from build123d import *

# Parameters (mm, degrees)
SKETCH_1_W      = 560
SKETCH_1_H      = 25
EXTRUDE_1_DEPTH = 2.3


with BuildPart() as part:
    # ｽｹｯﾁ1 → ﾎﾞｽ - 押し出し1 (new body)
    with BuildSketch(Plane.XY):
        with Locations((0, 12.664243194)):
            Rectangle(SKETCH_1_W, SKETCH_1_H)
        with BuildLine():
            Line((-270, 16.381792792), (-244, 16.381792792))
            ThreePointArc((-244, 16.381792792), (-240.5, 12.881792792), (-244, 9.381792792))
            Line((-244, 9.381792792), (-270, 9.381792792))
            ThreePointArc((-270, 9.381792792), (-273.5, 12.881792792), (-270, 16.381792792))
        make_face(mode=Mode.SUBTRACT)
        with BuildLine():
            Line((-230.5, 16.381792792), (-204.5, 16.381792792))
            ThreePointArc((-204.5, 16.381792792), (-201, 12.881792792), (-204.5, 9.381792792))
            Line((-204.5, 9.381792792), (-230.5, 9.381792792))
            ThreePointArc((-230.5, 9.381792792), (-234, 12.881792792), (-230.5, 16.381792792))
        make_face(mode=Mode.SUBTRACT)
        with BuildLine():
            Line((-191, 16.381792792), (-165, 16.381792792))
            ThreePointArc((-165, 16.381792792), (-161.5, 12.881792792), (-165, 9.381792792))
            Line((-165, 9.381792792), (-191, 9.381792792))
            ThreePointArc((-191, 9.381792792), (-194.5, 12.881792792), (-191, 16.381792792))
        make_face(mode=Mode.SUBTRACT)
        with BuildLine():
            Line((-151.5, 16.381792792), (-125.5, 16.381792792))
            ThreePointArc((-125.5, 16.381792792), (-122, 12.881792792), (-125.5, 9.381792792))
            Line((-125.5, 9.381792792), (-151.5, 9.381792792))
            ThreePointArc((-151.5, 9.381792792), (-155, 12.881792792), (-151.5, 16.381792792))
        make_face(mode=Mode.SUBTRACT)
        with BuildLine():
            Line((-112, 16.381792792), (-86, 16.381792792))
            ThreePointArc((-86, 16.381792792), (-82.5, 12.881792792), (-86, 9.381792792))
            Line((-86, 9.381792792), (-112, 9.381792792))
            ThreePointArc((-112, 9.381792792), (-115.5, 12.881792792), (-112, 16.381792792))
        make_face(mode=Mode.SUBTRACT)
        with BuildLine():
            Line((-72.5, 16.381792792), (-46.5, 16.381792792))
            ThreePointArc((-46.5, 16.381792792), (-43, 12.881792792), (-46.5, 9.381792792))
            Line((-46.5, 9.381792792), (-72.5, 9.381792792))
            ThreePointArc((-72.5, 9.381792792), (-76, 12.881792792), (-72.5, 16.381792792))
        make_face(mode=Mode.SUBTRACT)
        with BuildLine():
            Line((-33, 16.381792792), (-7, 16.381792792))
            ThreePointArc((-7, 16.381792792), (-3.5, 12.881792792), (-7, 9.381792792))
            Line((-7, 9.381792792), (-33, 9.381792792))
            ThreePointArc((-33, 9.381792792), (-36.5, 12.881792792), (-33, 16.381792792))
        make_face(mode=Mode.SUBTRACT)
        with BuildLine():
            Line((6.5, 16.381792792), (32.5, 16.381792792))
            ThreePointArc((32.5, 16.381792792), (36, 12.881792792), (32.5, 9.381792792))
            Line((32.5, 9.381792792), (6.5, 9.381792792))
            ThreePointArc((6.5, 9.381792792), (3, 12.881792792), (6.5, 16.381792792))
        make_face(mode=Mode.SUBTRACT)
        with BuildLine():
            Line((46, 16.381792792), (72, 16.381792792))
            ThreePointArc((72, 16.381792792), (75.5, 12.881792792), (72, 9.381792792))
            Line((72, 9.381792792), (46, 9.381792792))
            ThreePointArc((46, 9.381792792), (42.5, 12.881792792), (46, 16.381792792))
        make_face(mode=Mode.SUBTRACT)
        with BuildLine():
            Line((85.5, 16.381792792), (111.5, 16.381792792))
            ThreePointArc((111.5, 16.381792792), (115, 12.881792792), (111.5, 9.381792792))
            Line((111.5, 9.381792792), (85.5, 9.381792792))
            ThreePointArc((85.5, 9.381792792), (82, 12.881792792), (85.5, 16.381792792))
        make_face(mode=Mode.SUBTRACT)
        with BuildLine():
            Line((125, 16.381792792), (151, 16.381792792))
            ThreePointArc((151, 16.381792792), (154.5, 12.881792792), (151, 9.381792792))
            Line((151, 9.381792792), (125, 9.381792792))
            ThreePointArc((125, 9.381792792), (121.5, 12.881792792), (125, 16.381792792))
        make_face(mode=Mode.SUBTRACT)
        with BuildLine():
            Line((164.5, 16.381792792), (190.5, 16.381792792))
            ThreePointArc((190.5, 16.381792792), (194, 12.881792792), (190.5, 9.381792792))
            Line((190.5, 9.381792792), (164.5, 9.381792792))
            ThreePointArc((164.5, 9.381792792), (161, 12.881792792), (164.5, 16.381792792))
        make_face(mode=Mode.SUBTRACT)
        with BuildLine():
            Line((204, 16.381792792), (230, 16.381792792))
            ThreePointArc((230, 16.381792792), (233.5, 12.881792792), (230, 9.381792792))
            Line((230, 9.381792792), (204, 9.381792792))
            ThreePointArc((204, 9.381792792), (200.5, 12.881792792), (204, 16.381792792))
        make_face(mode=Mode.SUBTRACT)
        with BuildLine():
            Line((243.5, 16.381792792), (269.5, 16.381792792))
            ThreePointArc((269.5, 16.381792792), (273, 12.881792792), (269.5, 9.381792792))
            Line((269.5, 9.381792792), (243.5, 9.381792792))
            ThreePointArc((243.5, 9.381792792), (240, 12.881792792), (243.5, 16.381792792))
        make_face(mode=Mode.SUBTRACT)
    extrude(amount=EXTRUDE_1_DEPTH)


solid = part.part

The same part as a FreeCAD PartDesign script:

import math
import FreeCAD as App
import Part
import Sketcher

doc = App.newDocument("Part")
body = doc.addObject("PartDesign::Body", "Body")

# Sketch on XY plane
sketch1 = body.newObject("Sketcher::SketchObject", "Sketch")
sketch1.AttachmentSupport = (doc.getObject("XY_Plane"), [""])
sketch1.MapMode = "FlatFace"
sketch1.addGeometry(Part.LineSegment(App.Vector(-280, 25.2, 0), App.Vector(-280, 0.2, 0)), False)
sketch1.addGeometry(Part.LineSegment(App.Vector(-280, 0.2, 0), App.Vector(280, 0.2, 0)), False)
sketch1.addGeometry(Part.LineSegment(App.Vector(280, 0.2, 0), App.Vector(280, 25.2, 0)), False)
sketch1.addGeometry(Part.LineSegment(App.Vector(280, 25.2, 0), App.Vector(-280, 25.2, 0)), False)
sketch1.addGeometry(Part.ArcOfCircle(Part.Circle(App.Vector(-270, 12.9, 0), App.Vector(0, 0, 1), 3.5), math.radians(90), math.radians(270)), False)
sketch1.addGeometry(Part.LineSegment(App.Vector(-270, 16.4, 0), App.Vector(-244, 16.4, 0)), False)
sketch1.addGeometry(Part.ArcOfCircle(Part.Circle(App.Vector(-244, 12.9, 0), App.Vector(0, 0, 1), 3.5), math.radians(-90), math.radians(90)), False)
sketch1.addGeometry(Part.LineSegment(App.Vector(-244, 9.4, 0), App.Vector(-270, 9.4, 0)), False)
sketch1.addGeometry(Part.ArcOfCircle(Part.Circle(App.Vector(-230.5, 12.9, 0), App.Vector(0, 0, 1), 3.5), math.radians(90), math.radians(270)), False)
sketch1.addGeometry(Part.LineSegment(App.Vector(-230.5, 16.4, 0), App.Vector(-204.5, 16.4, 0)), False)
sketch1.addGeometry(Part.ArcOfCircle(Part.Circle(App.Vector(-204.5, 12.9, 0), App.Vector(0, 0, 1), 3.5), math.radians(-90), math.radians(90)), False)
sketch1.addGeometry(Part.LineSegment(App.Vector(-204.5, 9.4, 0), App.Vector(-230.5, 9.4, 0)), False)
sketch1.addGeometry(Part.ArcOfCircle(Part.Circle(App.Vector(-191, 12.9, 0), App.Vector(0, 0, 1), 3.5), math.radians(90), math.radians(270)), False)
sketch1.addGeometry(Part.LineSegment(App.Vector(-191, 16.4, 0), App.Vector(-165, 16.4, 0)), False)
sketch1.addGeometry(Part.ArcOfCircle(Part.Circle(App.Vector(-165, 12.9, 0), App.Vector(0, 0, 1), 3.5), math.radians(-90), math.radians(90)), False)
sketch1.addGeometry(Part.LineSegment(App.Vector(-165, 9.4, 0), App.Vector(-191, 9.4, 0)), False)
sketch1.addGeometry(Part.ArcOfCircle(Part.Circle(App.Vector(-151.5, 12.9, 0), App.Vector(0, 0, 1), 3.5), math.radians(90), math.radians(270)), False)
sketch1.addGeometry(Part.LineSegment(App.Vector(-151.5, 16.4, 0), App.Vector(-125.5, 16.4, 0)), False)
sketch1.addGeometry(Part.ArcOfCircle(Part.Circle(App.Vector(-125.5, 12.9, 0), App.Vector(0, 0, 1), 3.5), math.radians(-90), math.radians(90)), False)
sketch1.addGeometry(Part.LineSegment(App.Vector(-125.5, 9.4, 0), App.Vector(-151.5, 9.4, 0)), False)
sketch1.addGeometry(Part.ArcOfCircle(Part.Circle(App.Vector(-112, 12.9, 0), App.Vector(0, 0, 1), 3.5), math.radians(90), math.radians(270)), False)
sketch1.addGeometry(Part.LineSegment(App.Vector(-112, 16.4, 0), App.Vector(-86, 16.4, 0)), False)
sketch1.addGeometry(Part.ArcOfCircle(Part.Circle(App.Vector(-86, 12.9, 0), App.Vector(0, 0, 1), 3.5), math.radians(-90), math.radians(90)), False)
sketch1.addGeometry(Part.LineSegment(App.Vector(-86, 9.4, 0), App.Vector(-112, 9.4, 0)), False)
sketch1.addGeometry(Part.ArcOfCircle(Part.Circle(App.Vector(-72.5, 12.9, 0), App.Vector(0, 0, 1), 3.5), math.radians(90), math.radians(270)), False)
sketch1.addGeometry(Part.LineSegment(App.Vector(-72.5, 16.4, 0), App.Vector(-46.5, 16.4, 0)), False)
sketch1.addGeometry(Part.ArcOfCircle(Part.Circle(App.Vector(-46.5, 12.9, 0), App.Vector(0, 0, 1), 3.5), math.radians(-90), math.radians(90)), False)
sketch1.addGeometry(Part.LineSegment(App.Vector(-46.5, 9.4, 0), App.Vector(-72.5, 9.4, 0)), False)
sketch1.addGeometry(Part.ArcOfCircle(Part.Circle(App.Vector(-33, 12.9, 0), App.Vector(0, 0, 1), 3.5), math.radians(90), math.radians(270)), False)
sketch1.addGeometry(Part.LineSegment(App.Vector(-33, 16.4, 0), App.Vector(-7, 16.4, 0)), False)
sketch1.addGeometry(Part.ArcOfCircle(Part.Circle(App.Vector(-7, 12.9, 0), App.Vector(0, 0, 1), 3.5), math.radians(-90), math.radians(90)), False)
sketch1.addGeometry(Part.LineSegment(App.Vector(-7, 9.4, 0), App.Vector(-33, 9.4, 0)), False)
sketch1.addGeometry(Part.ArcOfCircle(Part.Circle(App.Vector(6.5, 12.9, 0), App.Vector(0, 0, 1), 3.5), math.radians(90), math.radians(270)), False)
sketch1.addGeometry(Part.LineSegment(App.Vector(6.5, 16.4, 0), App.Vector(32.5, 16.4, 0)), False)
sketch1.addGeometry(Part.ArcOfCircle(Part.Circle(App.Vector(32.5, 12.9, 0), App.Vector(0, 0, 1), 3.5), math.radians(-90), math.radians(90)), False)
sketch1.addGeometry(Part.LineSegment(App.Vector(32.5, 9.4, 0), App.Vector(6.5, 9.4, 0)), False)
sketch1.addGeometry(Part.ArcOfCircle(Part.Circle(App.Vector(46, 12.9, 0), App.Vector(0, 0, 1), 3.5), math.radians(90), math.radians(270)), False)
sketch1.addGeometry(Part.LineSegment(App.Vector(46, 16.4, 0), App.Vector(72, 16.4, 0)), False)
sketch1.addGeometry(Part.ArcOfCircle(Part.Circle(App.Vector(72, 12.9, 0), App.Vector(0, 0, 1), 3.5), math.radians(-90), math.radians(90)), False)
sketch1.addGeometry(Part.LineSegment(App.Vector(72, 9.4, 0), App.Vector(46, 9.4, 0)), False)
sketch1.addGeometry(Part.ArcOfCircle(Part.Circle(App.Vector(85.5, 12.9, 0), App.Vector(0, 0, 1), 3.5), math.radians(90), math.radians(270)), False)
sketch1.addGeometry(Part.LineSegment(App.Vector(85.5, 16.4, 0), App.Vector(111.5, 16.4, 0)), False)
sketch1.addGeometry(Part.ArcOfCircle(Part.Circle(App.Vector(111.5, 12.9, 0), App.Vector(0, 0, 1), 3.5), math.radians(-90), math.radians(90)), False)
sketch1.addGeometry(Part.LineSegment(App.Vector(111.5, 9.4, 0), App.Vector(85.5, 9.4, 0)), False)
sketch1.addGeometry(Part.ArcOfCircle(Part.Circle(App.Vector(125, 12.9, 0), App.Vector(0, 0, 1), 3.5), math.radians(90), math.radians(270)), False)
sketch1.addGeometry(Part.LineSegment(App.Vector(125, 16.4, 0), App.Vector(151, 16.4, 0)), False)
sketch1.addGeometry(Part.ArcOfCircle(Part.Circle(App.Vector(151, 12.9, 0), App.Vector(0, 0, 1), 3.5), math.radians(-90), math.radians(90)), False)
sketch1.addGeometry(Part.LineSegment(App.Vector(151, 9.4, 0), App.Vector(125, 9.4, 0)), False)
sketch1.addGeometry(Part.ArcOfCircle(Part.Circle(App.Vector(164.5, 12.9, 0), App.Vector(0, 0, 1), 3.5), math.radians(90), math.radians(270)), False)
sketch1.addGeometry(Part.LineSegment(App.Vector(164.5, 16.4, 0), App.Vector(190.5, 16.4, 0)), False)
sketch1.addGeometry(Part.ArcOfCircle(Part.Circle(App.Vector(190.5, 12.9, 0), App.Vector(0, 0, 1), 3.5), math.radians(-90), math.radians(90)), False)
sketch1.addGeometry(Part.LineSegment(App.Vector(190.5, 9.4, 0), App.Vector(164.5, 9.4, 0)), False)
sketch1.addGeometry(Part.ArcOfCircle(Part.Circle(App.Vector(204, 12.9, 0), App.Vector(0, 0, 1), 3.5), math.radians(90), math.radians(270)), False)
sketch1.addGeometry(Part.LineSegment(App.Vector(204, 16.4, 0), App.Vector(230, 16.4, 0)), False)
sketch1.addGeometry(Part.ArcOfCircle(Part.Circle(App.Vector(230, 12.9, 0), App.Vector(0, 0, 1), 3.5), math.radians(-90), math.radians(90)), False)
sketch1.addGeometry(Part.LineSegment(App.Vector(230, 9.4, 0), App.Vector(204, 9.4, 0)), False)
sketch1.addGeometry(Part.ArcOfCircle(Part.Circle(App.Vector(243.5, 12.9, 0), App.Vector(0, 0, 1), 3.5), math.radians(90), math.radians(270)), False)
sketch1.addGeometry(Part.LineSegment(App.Vector(243.5, 16.4, 0), App.Vector(269.5, 16.4, 0)), False)
sketch1.addGeometry(Part.ArcOfCircle(Part.Circle(App.Vector(269.5, 12.9, 0), App.Vector(0, 0, 1), 3.5), math.radians(-90), math.radians(90)), False)
sketch1.addGeometry(Part.LineSegment(App.Vector(269.5, 9.4, 0), App.Vector(243.5, 9.4, 0)), False)
sketch1.addConstraint(Sketcher.Constraint("Coincident", 0, 2, 1, 1))
sketch1.addConstraint(Sketcher.Constraint("Coincident", 1, 2, 2, 1))
sketch1.addConstraint(Sketcher.Constraint("Coincident", 2, 2, 3, 1))
sketch1.addConstraint(Sketcher.Constraint("Coincident", 3, 2, 0, 1))
sketch1.addConstraint(Sketcher.Constraint("Tangent", 4, 1, 5, 1))
sketch1.addConstraint(Sketcher.Constraint("Tangent", 5, 2, 6, 2))
sketch1.addConstraint(Sketcher.Constraint("Tangent", 6, 1, 7, 1))
sketch1.addConstraint(Sketcher.Constraint("Tangent", 7, 2, 4, 2))
sketch1.addConstraint(Sketcher.Constraint("Tangent", 8, 1, 9, 1))
sketch1.addConstraint(Sketcher.Constraint("Tangent", 9, 2, 10, 2))
sketch1.addConstraint(Sketcher.Constraint("Tangent", 10, 1, 11, 1))
sketch1.addConstraint(Sketcher.Constraint("Tangent", 11, 2, 8, 2))
sketch1.addConstraint(Sketcher.Constraint("Tangent", 12, 1, 13, 1))
sketch1.addConstraint(Sketcher.Constraint("Tangent", 13, 2, 14, 2))
sketch1.addConstraint(Sketcher.Constraint("Tangent", 14, 1, 15, 1))
sketch1.addConstraint(Sketcher.Constraint("Tangent", 15, 2, 12, 2))
sketch1.addConstraint(Sketcher.Constraint("Tangent", 16, 1, 17, 1))
sketch1.addConstraint(Sketcher.Constraint("Tangent", 17, 2, 18, 2))
sketch1.addConstraint(Sketcher.Constraint("Tangent", 18, 1, 19, 1))
sketch1.addConstraint(Sketcher.Constraint("Tangent", 19, 2, 16, 2))
sketch1.addConstraint(Sketcher.Constraint("Tangent", 20, 1, 21, 1))
sketch1.addConstraint(Sketcher.Constraint("Tangent", 21, 2, 22, 2))
sketch1.addConstraint(Sketcher.Constraint("Tangent", 22, 1, 23, 1))
sketch1.addConstraint(Sketcher.Constraint("Tangent", 23, 2, 20, 2))
sketch1.addConstraint(Sketcher.Constraint("Tangent", 24, 1, 25, 1))
sketch1.addConstraint(Sketcher.Constraint("Tangent", 25, 2, 26, 2))
sketch1.addConstraint(Sketcher.Constraint("Tangent", 26, 1, 27, 1))
sketch1.addConstraint(Sketcher.Constraint("Tangent", 27, 2, 24, 2))
sketch1.addConstraint(Sketcher.Constraint("Tangent", 28, 1, 29, 1))
sketch1.addConstraint(Sketcher.Constraint("Tangent", 29, 2, 30, 2))
sketch1.addConstraint(Sketcher.Constraint("Tangent", 30, 1, 31, 1))
sketch1.addConstraint(Sketcher.Constraint("Tangent", 31, 2, 28, 2))
sketch1.addConstraint(Sketcher.Constraint("Tangent", 32, 1, 33, 1))
sketch1.addConstraint(Sketcher.Constraint("Tangent", 33, 2, 34, 2))
sketch1.addConstraint(Sketcher.Constraint("Tangent", 34, 1, 35, 1))
sketch1.addConstraint(Sketcher.Constraint("Tangent", 35, 2, 32, 2))
sketch1.addConstraint(Sketcher.Constraint("Tangent", 36, 1, 37, 1))
sketch1.addConstraint(Sketcher.Constraint("Tangent", 37, 2, 38, 2))
sketch1.addConstraint(Sketcher.Constraint("Tangent", 38, 1, 39, 1))
sketch1.addConstraint(Sketcher.Constraint("Tangent", 39, 2, 36, 2))
sketch1.addConstraint(Sketcher.Constraint("Tangent", 40, 1, 41, 1))
sketch1.addConstraint(Sketcher.Constraint("Tangent", 41, 2, 42, 2))
sketch1.addConstraint(Sketcher.Constraint("Tangent", 42, 1, 43, 1))
sketch1.addConstraint(Sketcher.Constraint("Tangent", 43, 2, 40, 2))
sketch1.addConstraint(Sketcher.Constraint("Tangent", 44, 1, 45, 1))
sketch1.addConstraint(Sketcher.Constraint("Tangent", 45, 2, 46, 2))
sketch1.addConstraint(Sketcher.Constraint("Tangent", 46, 1, 47, 1))
sketch1.addConstraint(Sketcher.Constraint("Tangent", 47, 2, 44, 2))
sketch1.addConstraint(Sketcher.Constraint("Tangent", 48, 1, 49, 1))
sketch1.addConstraint(Sketcher.Constraint("Tangent", 49, 2, 50, 2))
sketch1.addConstraint(Sketcher.Constraint("Tangent", 50, 1, 51, 1))
sketch1.addConstraint(Sketcher.Constraint("Tangent", 51, 2, 48, 2))
sketch1.addConstraint(Sketcher.Constraint("Tangent", 52, 1, 53, 1))
sketch1.addConstraint(Sketcher.Constraint("Tangent", 53, 2, 54, 2))
sketch1.addConstraint(Sketcher.Constraint("Tangent", 54, 1, 55, 1))
sketch1.addConstraint(Sketcher.Constraint("Tangent", 55, 2, 52, 2))
sketch1.addConstraint(Sketcher.Constraint("Tangent", 56, 1, 57, 1))
sketch1.addConstraint(Sketcher.Constraint("Tangent", 57, 2, 58, 2))
sketch1.addConstraint(Sketcher.Constraint("Tangent", 58, 1, 59, 1))
sketch1.addConstraint(Sketcher.Constraint("Tangent", 59, 2, 56, 2))
sketch1.addConstraint(Sketcher.Constraint("Vertical", 0))
sketch1.addConstraint(Sketcher.Constraint("Horizontal", 1))
sketch1.addConstraint(Sketcher.Constraint("Vertical", 2))
sketch1.addConstraint(Sketcher.Constraint("Horizontal", 3))
sketch1.addConstraint(Sketcher.Constraint("Horizontal", 5))
sketch1.addConstraint(Sketcher.Constraint("Horizontal", 7))
sketch1.addConstraint(Sketcher.Constraint("Horizontal", 9))
sketch1.addConstraint(Sketcher.Constraint("Horizontal", 11))
sketch1.addConstraint(Sketcher.Constraint("Horizontal", 13))
sketch1.addConstraint(Sketcher.Constraint("Horizontal", 15))
sketch1.addConstraint(Sketcher.Constraint("Horizontal", 17))
sketch1.addConstraint(Sketcher.Constraint("Horizontal", 19))
sketch1.addConstraint(Sketcher.Constraint("Horizontal", 21))
sketch1.addConstraint(Sketcher.Constraint("Horizontal", 23))
sketch1.addConstraint(Sketcher.Constraint("Horizontal", 25))
sketch1.addConstraint(Sketcher.Constraint("Horizontal", 27))
sketch1.addConstraint(Sketcher.Constraint("Horizontal", 29))
sketch1.addConstraint(Sketcher.Constraint("Horizontal", 31))
sketch1.addConstraint(Sketcher.Constraint("Horizontal", 33))
sketch1.addConstraint(Sketcher.Constraint("Horizontal", 35))
sketch1.addConstraint(Sketcher.Constraint("Horizontal", 37))
sketch1.addConstraint(Sketcher.Constraint("Horizontal", 39))
sketch1.addConstraint(Sketcher.Constraint("Horizontal", 41))
sketch1.addConstraint(Sketcher.Constraint("Horizontal", 43))
sketch1.addConstraint(Sketcher.Constraint("Horizontal", 45))
sketch1.addConstraint(Sketcher.Constraint("Horizontal", 47))
sketch1.addConstraint(Sketcher.Constraint("Horizontal", 49))
sketch1.addConstraint(Sketcher.Constraint("Horizontal", 51))
sketch1.addConstraint(Sketcher.Constraint("Horizontal", 53))
sketch1.addConstraint(Sketcher.Constraint("Horizontal", 55))
sketch1.addConstraint(Sketcher.Constraint("Horizontal", 57))
sketch1.addConstraint(Sketcher.Constraint("Horizontal", 59))
sketch1.addConstraint(Sketcher.Constraint("Equal", 6, 8))
sketch1.addConstraint(Sketcher.Constraint("Equal", 10, 12))
sketch1.addConstraint(Sketcher.Constraint("Equal", 14, 16))
sketch1.addConstraint(Sketcher.Constraint("Equal", 18, 20))
sketch1.addConstraint(Sketcher.Constraint("Equal", 22, 24))
sketch1.addConstraint(Sketcher.Constraint("Equal", 26, 28))
sketch1.addConstraint(Sketcher.Constraint("Equal", 30, 32))
sketch1.addConstraint(Sketcher.Constraint("Equal", 34, 36))
sketch1.addConstraint(Sketcher.Constraint("Equal", 38, 40))
sketch1.addConstraint(Sketcher.Constraint("Equal", 42, 44))
sketch1.addConstraint(Sketcher.Constraint("Equal", 46, 48))
sketch1.addConstraint(Sketcher.Constraint("Equal", 50, 52))
sketch1.addConstraint(Sketcher.Constraint("Equal", 54, 56))
sketch1.addConstraint(Sketcher.Constraint("Horizontal", 6, 3, 8, 3))
sketch1.addConstraint(Sketcher.Constraint("Horizontal", 10, 3, 12, 3))
sketch1.addConstraint(Sketcher.Constraint("Horizontal", 14, 3, 16, 3))
sketch1.addConstraint(Sketcher.Constraint("Horizontal", 18, 3, 20, 3))
sketch1.addConstraint(Sketcher.Constraint("Horizontal", 22, 3, 24, 3))
sketch1.addConstraint(Sketcher.Constraint("Horizontal", 26, 3, 28, 3))
sketch1.addConstraint(Sketcher.Constraint("Horizontal", 30, 3, 32, 3))
sketch1.addConstraint(Sketcher.Constraint("Horizontal", 34, 3, 36, 3))
sketch1.addConstraint(Sketcher.Constraint("Horizontal", 38, 3, 40, 3))
sketch1.addConstraint(Sketcher.Constraint("Horizontal", 42, 3, 44, 3))
sketch1.addConstraint(Sketcher.Constraint("Horizontal", 46, 3, 48, 3))
sketch1.addConstraint(Sketcher.Constraint("Horizontal", 50, 3, 52, 3))
sketch1.addConstraint(Sketcher.Constraint("Horizontal", 54, 3, 56, 3))
sketch1.addConstraint(Sketcher.Constraint("Equal", 7, 9))
sketch1.addConstraint(Sketcher.Constraint("Equal", 11, 13))
sketch1.addConstraint(Sketcher.Constraint("Equal", 15, 17))
sketch1.addConstraint(Sketcher.Constraint("Equal", 19, 21))
sketch1.addConstraint(Sketcher.Constraint("Equal", 23, 25))
sketch1.addConstraint(Sketcher.Constraint("Equal", 27, 29))
sketch1.addConstraint(Sketcher.Constraint("Equal", 31, 33))
sketch1.addConstraint(Sketcher.Constraint("Equal", 35, 37))
sketch1.addConstraint(Sketcher.Constraint("Equal", 39, 41))
sketch1.addConstraint(Sketcher.Constraint("Equal", 43, 45))
sketch1.addConstraint(Sketcher.Constraint("Equal", 47, 49))
sketch1.addConstraint(Sketcher.Constraint("Equal", 51, 53))
sketch1.addConstraint(Sketcher.Constraint("Equal", 55, 57))
sketch1.addConstraint(Sketcher.Constraint("Radius", 4, 3.5))
sketch1.addConstraint(Sketcher.Constraint("DistanceX", 1, 1, 1, 2, 560.0))
sketch1.addConstraint(Sketcher.Constraint("DistanceX", 5, 1, 5, 2, 26.0))
sketch1.addConstraint(Sketcher.Constraint("DistanceY", 0, 2, 0, 1, 25.0))
sketch1.addConstraint(Sketcher.Constraint("DistanceX", 4, 3, -1, 1, 270.0))
sketch1.addConstraint(Sketcher.Constraint("DistanceX", 12, 3, -1, 1, 191.0))
sketch1.addConstraint(Sketcher.Constraint("DistanceX", 20, 3, -1, 1, 112.0))
sketch1.addConstraint(Sketcher.Constraint("DistanceX", 28, 3, -1, 1, 33.0))
sketch1.addConstraint(Sketcher.Constraint("DistanceX", -1, 1, 36, 3, 46.0))
sketch1.addConstraint(Sketcher.Constraint("DistanceX", -1, 1, 44, 3, 125.0))
sketch1.addConstraint(Sketcher.Constraint("DistanceX", -1, 1, 52, 3, 204.0))
sketch1.addConstraint(Sketcher.Constraint("DistanceX", 0, 2, -1, 1, 280.0))
sketch1.addConstraint(Sketcher.Constraint("DistanceX", 8, 3, -1, 1, 230.5))
sketch1.addConstraint(Sketcher.Constraint("DistanceX", 16, 3, -1, 1, 151.5))
sketch1.addConstraint(Sketcher.Constraint("DistanceX", 24, 3, -1, 1, 72.5))
sketch1.addConstraint(Sketcher.Constraint("DistanceX", -1, 1, 32, 3, 6.5))
sketch1.addConstraint(Sketcher.Constraint("DistanceX", -1, 1, 40, 3, 85.5))
sketch1.addConstraint(Sketcher.Constraint("DistanceX", -1, 1, 48, 3, 164.5))
sketch1.addConstraint(Sketcher.Constraint("DistanceX", -1, 1, 56, 3, 243.5))
sketch1.addConstraint(Sketcher.Constraint("DistanceY", -1, 1, 4, 3, 12.881793))
sketch1.addConstraint(Sketcher.Constraint("DistanceY", -1, 1, 0, 2, 0.164243))
pad1 = body.newObject("PartDesign::Pad", "Pad")
pad1.Profile = sketch1
pad1.Length = 2.3

doc.recompute()
